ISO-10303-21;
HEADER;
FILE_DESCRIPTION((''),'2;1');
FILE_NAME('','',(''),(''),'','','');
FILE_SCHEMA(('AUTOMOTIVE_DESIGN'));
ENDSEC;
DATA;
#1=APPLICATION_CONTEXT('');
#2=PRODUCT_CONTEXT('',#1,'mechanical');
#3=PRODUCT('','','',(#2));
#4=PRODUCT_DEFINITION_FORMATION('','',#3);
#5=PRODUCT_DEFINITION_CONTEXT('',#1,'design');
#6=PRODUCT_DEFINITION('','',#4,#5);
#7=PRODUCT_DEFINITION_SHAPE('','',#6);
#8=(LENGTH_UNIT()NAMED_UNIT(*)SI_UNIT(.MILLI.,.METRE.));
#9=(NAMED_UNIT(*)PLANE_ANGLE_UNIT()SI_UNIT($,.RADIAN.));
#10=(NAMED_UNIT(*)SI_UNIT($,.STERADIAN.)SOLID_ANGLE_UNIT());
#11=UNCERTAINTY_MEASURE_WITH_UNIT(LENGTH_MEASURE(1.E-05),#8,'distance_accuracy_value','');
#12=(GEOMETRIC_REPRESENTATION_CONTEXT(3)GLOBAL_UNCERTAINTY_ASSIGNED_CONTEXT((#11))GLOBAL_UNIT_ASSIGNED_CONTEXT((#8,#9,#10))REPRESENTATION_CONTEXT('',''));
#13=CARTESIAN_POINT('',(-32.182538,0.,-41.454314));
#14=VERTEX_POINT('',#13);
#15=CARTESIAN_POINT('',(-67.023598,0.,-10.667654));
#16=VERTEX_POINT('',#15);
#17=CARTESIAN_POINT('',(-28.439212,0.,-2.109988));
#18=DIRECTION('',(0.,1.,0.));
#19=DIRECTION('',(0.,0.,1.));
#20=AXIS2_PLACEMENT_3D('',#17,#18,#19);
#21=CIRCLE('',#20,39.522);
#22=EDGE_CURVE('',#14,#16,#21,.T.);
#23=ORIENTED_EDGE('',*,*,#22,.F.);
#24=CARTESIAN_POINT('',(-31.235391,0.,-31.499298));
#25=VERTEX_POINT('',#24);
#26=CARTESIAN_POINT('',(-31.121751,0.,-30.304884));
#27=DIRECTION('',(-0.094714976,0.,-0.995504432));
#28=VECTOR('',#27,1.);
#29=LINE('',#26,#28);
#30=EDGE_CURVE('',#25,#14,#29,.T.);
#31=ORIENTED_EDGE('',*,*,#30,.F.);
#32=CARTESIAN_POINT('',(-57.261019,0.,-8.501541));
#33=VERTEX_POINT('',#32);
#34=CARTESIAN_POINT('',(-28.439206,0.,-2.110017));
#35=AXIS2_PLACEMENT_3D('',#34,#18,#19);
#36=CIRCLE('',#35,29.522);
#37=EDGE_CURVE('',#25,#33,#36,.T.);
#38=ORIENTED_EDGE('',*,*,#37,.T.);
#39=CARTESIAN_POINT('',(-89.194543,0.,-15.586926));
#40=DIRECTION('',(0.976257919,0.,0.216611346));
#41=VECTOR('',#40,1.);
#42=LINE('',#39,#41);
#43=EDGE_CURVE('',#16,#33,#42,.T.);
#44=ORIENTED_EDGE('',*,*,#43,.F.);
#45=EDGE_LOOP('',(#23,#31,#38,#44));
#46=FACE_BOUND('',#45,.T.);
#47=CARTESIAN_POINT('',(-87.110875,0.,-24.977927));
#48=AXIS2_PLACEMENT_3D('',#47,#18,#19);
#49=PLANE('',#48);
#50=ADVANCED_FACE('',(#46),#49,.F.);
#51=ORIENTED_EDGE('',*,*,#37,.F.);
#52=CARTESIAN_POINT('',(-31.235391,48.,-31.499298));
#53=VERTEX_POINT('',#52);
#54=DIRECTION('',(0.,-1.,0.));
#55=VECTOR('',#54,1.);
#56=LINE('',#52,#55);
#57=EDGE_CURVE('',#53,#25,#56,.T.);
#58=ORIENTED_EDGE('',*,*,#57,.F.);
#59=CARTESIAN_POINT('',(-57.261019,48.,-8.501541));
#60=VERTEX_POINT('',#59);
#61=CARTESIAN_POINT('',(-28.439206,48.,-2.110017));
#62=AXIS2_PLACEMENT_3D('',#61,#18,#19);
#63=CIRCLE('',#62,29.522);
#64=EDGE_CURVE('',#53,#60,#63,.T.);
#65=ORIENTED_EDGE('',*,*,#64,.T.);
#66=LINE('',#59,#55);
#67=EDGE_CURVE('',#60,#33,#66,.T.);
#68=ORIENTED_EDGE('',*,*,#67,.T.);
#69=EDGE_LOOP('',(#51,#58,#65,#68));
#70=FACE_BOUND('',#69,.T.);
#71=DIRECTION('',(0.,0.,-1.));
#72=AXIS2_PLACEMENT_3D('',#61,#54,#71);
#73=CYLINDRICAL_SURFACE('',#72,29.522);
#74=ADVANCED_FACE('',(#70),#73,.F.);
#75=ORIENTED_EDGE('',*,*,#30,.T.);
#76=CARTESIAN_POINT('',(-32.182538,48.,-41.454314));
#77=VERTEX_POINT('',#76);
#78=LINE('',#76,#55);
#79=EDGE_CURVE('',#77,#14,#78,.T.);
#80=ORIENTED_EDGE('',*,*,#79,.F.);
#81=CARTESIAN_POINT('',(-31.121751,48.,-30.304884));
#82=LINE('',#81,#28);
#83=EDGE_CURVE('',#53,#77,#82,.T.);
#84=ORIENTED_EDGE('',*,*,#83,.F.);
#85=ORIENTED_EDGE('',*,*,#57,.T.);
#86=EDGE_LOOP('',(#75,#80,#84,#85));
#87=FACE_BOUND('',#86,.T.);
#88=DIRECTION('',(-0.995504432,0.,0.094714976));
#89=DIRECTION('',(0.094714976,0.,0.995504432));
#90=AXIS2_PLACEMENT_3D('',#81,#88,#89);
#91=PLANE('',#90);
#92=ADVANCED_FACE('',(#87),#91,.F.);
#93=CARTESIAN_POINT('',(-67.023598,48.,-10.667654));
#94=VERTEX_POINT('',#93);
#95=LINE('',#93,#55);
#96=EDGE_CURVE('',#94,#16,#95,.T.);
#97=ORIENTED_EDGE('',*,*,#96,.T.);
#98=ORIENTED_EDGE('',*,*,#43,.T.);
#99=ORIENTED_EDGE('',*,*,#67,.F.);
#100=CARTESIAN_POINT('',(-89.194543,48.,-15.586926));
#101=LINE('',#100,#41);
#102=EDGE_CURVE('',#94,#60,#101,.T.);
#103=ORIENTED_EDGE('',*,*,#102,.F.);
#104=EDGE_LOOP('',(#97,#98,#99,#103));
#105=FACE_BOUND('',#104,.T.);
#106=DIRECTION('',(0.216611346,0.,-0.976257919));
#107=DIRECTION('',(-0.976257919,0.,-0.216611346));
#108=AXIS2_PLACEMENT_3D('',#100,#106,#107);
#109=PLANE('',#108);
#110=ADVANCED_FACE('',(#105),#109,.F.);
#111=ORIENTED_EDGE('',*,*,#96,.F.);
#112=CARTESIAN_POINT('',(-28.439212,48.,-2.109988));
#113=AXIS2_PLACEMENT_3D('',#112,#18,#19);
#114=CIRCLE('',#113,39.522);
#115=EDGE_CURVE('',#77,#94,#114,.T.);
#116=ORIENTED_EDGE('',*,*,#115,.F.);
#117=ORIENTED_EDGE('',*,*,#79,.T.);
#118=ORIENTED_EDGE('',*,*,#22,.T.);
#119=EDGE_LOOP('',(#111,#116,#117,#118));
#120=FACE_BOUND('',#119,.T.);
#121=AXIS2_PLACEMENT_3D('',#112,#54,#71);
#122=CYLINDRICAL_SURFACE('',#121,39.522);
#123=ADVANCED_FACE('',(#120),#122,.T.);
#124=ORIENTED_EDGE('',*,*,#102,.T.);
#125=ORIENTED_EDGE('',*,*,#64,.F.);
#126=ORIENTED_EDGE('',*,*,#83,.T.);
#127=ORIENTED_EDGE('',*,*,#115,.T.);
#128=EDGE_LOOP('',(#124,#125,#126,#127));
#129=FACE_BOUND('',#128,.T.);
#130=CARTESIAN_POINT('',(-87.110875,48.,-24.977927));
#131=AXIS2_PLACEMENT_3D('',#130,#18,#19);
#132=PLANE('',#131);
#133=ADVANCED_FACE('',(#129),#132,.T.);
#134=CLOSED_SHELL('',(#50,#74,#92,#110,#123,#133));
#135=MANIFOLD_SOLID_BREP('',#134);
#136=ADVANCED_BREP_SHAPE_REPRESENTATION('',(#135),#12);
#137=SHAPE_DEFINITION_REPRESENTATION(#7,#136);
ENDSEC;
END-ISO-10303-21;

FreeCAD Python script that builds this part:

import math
import FreeCAD as App
import Part
import Sketcher

V = App.Vector
Q = App.Units.Quantity

doc = App.newDocument("Part")
body = doc.addObject("PartDesign::Body", "Body")

# Sketch on XZ plane
sketch1 = body.newObject("Sketcher::SketchObject", "Sketch")
sketch1.AttachmentSupport = (doc.getObject("XZ_Plane"), [""])
sketch1.MapMode = "FlatFace"
sketch1.addGeometry([
    Part.ArcOfCircle(Part.Circle(V(-28.439206, -2.110017, 0), V(0, 0, 1), 29.522), math.radians(-167.496434), math.radians(-95.434933)),
    Part.LineSegment(V(-31.235391, -31.499298, 0), V(-32.182538, -41.454314, 0)),
    Part.ArcOfCircle(Part.Circle(V(-28.439212, -2.109988, 0), V(0, 0, 1), 39.522), math.radians(-167.494744), math.radians(-95.434915)),
    Part.LineSegment(V(-67.023598, -10.667654, 0), V(-57.261019, -8.501541, 0)),
], False)
sketch1.addConstraint([
    Sketcher.Constraint("Coincident", 0, 2, 1, 1),
    Sketcher.Constraint("Coincident", 1, 2, 2, 2),
    Sketcher.Constraint("Coincident", 2, 1, 3, 1),
    Sketcher.Constraint("Coincident", 3, 2, 0, 1),
    Sketcher.Constraint("Distance", 3, Q("10 mm")),
    Sketcher.Constraint("Radius", 0, Q("29.522 mm")),
    Sketcher.Constraint("Radius", 2, Q("39.522 mm")),
    Sketcher.Constraint("DistanceX", 2, 1, -1, 1, Q("67.023598 mm")),
    Sketcher.Constraint("Distance", 1, Q("9.999972 mm")),
    Sketcher.Constraint("DistanceX", 0, 2, -1, 1, Q("31.235391 mm")),
    Sketcher.Constraint("DistanceX", 3, 2, -1, 1, Q("57.261019 mm")),
    Sketcher.Constraint("DistanceY", 3, 2, -1, 1, Q("8.501541 mm")),
    Sketcher.Constraint("DistanceY", 0, 2, 0, 3, Q("29.389281 mm")),
    Sketcher.Constraint("DistanceX", 1, 2, 0, 3, Q("3.743332 mm")),
])
pad1 = body.newObject("PartDesign::Pad", "Pad")
pad1.Profile = sketch1
pad1.Length = 48
pad1.Reversed = True

doc.recompute()
